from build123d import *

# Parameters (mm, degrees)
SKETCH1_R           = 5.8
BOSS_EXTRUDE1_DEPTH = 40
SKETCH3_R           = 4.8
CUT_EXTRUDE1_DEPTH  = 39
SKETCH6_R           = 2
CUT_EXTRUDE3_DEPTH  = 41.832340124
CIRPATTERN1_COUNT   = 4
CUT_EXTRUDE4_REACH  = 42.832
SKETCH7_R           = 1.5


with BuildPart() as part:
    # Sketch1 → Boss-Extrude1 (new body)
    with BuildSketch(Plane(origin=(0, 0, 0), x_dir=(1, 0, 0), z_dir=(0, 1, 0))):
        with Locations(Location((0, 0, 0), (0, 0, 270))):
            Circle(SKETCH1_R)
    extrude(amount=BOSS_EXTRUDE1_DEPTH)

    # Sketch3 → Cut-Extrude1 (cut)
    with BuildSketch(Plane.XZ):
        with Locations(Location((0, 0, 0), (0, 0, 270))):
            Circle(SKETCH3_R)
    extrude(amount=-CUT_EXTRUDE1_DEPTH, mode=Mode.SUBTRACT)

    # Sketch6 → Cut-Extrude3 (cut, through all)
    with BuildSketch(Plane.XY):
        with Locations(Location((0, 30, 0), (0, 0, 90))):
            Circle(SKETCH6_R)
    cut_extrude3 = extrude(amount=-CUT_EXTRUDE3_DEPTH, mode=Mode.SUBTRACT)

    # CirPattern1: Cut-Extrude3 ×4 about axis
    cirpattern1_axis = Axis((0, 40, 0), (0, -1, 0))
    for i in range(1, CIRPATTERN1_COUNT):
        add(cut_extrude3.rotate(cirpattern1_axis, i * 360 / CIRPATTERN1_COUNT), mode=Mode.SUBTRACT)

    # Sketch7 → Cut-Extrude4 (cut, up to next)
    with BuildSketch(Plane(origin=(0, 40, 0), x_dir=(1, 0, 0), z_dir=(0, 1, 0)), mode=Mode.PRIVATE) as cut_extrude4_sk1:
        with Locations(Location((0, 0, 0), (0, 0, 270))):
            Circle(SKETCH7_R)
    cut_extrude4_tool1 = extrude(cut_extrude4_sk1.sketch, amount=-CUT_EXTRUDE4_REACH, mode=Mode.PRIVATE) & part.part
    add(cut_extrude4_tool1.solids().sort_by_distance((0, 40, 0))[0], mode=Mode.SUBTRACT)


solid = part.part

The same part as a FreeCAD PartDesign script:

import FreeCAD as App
import Part
import Sketcher
Q = App.Units.Quantity

doc = App.newDocument("Part")
body = doc.addObject("PartDesign::Body", "Body")

sketch1 = body.newObject("Sketcher::SketchObject", "Sketch")
sketch1.AttachmentSupport = (doc.getObject("XZ_Plane"), [""])
sketch1.MapMode = "FlatFace"
sketch1.addGeometry(Part.Circle(App.Vector(0, 0, 0), App.Vector(0, 0, 1), 6), False)
sketch1.addConstraint([
    Sketcher.Constraint("Coincident", 0, 3, -1, 1),
    Sketcher.Constraint("Diameter", 0, Q("11.6 mm")),
])
pad1 = body.newObject("PartDesign::Pad", "Pad")
pad1.Profile = sketch1
pad1.Length = 40
pad1.Reversed = True

sketch2 = body.newObject("Sketcher::SketchObject", "Sketch001")
sketch2.AttachmentSupport = (doc.getObject("XZ_Plane"), [""])
sketch2.MapMode = "FlatFace"
sketch2.addGeometry(Part.Circle(App.Vector(0, 0, 0), App.Vector(0, 0, 1), 4.8), False)
sketch2.addConstraint([
    Sketcher.Constraint("Coincident", 0, 3, -1, 1),
    Sketcher.Constraint("Diameter", 0, Q("9.6 mm")),
])
pocket1 = body.newObject("PartDesign::Pocket", "Pocket")
pocket1.Profile = sketch2
pocket1.Length = 39

sketch3 = body.newObject("Sketcher::SketchObject", "Sketch002")
sketch3.AttachmentSupport = (doc.getObject("XY_Plane"), [""])
sketch3.MapMode = "FlatFace"
sketch3.addGeometry(Part.Circle(App.Vector(0, 30, 0), App.Vector(0, 0, 1), 2), False)
sketch3.addConstraint([
    Sketcher.Constraint("PointOnObject", 0, 3, -2),
    Sketcher.Constraint("Diameter", 0, Q("4 mm")),
    Sketcher.Constraint("DistanceY", -1, 1, 0, 3, Q("30 mm")),
])
pocket2 = body.newObject("PartDesign::Pocket", "Pocket001")
pocket2.Profile = sketch3
pocket2.Type = "ThroughAll"
doc.recompute()

polarpattern = body.newObject("PartDesign::PolarPattern", "PolarPattern")
polarpattern.Originals = [pocket2]
polarpattern.Axis = (doc.getObject("Y_Axis"), [""])
polarpattern.Angle = 360
polarpattern.Occurrences = 4
body.Tip = polarpattern

sketch4 = body.newObject("Sketcher::SketchObject", "Sketch003")
sketch4.AttachmentSupport = (doc.getObject("XZ_Plane"), [""])
sketch4.MapMode = "FlatFace"
sketch4.AttachmentOffset = App.Placement(App.Vector(0, 0, -40), App.Rotation())
sketch4.addGeometry(Part.Circle(App.Vector(0, 0, 0), App.Vector(0, 0, 1), 1.5), False)
sketch4.addConstraint([
    Sketcher.Constraint("Coincident", 0, 3, -1, 1),
    Sketcher.Constraint("Diameter", 0, Q("3 mm")),
])
pocket3 = body.newObject("PartDesign::Pocket", "Pocket002")
pocket3.Profile = sketch4
pocket3.Type = "UpToFirst"
pocket3.Reversed = True

doc.recompute()
